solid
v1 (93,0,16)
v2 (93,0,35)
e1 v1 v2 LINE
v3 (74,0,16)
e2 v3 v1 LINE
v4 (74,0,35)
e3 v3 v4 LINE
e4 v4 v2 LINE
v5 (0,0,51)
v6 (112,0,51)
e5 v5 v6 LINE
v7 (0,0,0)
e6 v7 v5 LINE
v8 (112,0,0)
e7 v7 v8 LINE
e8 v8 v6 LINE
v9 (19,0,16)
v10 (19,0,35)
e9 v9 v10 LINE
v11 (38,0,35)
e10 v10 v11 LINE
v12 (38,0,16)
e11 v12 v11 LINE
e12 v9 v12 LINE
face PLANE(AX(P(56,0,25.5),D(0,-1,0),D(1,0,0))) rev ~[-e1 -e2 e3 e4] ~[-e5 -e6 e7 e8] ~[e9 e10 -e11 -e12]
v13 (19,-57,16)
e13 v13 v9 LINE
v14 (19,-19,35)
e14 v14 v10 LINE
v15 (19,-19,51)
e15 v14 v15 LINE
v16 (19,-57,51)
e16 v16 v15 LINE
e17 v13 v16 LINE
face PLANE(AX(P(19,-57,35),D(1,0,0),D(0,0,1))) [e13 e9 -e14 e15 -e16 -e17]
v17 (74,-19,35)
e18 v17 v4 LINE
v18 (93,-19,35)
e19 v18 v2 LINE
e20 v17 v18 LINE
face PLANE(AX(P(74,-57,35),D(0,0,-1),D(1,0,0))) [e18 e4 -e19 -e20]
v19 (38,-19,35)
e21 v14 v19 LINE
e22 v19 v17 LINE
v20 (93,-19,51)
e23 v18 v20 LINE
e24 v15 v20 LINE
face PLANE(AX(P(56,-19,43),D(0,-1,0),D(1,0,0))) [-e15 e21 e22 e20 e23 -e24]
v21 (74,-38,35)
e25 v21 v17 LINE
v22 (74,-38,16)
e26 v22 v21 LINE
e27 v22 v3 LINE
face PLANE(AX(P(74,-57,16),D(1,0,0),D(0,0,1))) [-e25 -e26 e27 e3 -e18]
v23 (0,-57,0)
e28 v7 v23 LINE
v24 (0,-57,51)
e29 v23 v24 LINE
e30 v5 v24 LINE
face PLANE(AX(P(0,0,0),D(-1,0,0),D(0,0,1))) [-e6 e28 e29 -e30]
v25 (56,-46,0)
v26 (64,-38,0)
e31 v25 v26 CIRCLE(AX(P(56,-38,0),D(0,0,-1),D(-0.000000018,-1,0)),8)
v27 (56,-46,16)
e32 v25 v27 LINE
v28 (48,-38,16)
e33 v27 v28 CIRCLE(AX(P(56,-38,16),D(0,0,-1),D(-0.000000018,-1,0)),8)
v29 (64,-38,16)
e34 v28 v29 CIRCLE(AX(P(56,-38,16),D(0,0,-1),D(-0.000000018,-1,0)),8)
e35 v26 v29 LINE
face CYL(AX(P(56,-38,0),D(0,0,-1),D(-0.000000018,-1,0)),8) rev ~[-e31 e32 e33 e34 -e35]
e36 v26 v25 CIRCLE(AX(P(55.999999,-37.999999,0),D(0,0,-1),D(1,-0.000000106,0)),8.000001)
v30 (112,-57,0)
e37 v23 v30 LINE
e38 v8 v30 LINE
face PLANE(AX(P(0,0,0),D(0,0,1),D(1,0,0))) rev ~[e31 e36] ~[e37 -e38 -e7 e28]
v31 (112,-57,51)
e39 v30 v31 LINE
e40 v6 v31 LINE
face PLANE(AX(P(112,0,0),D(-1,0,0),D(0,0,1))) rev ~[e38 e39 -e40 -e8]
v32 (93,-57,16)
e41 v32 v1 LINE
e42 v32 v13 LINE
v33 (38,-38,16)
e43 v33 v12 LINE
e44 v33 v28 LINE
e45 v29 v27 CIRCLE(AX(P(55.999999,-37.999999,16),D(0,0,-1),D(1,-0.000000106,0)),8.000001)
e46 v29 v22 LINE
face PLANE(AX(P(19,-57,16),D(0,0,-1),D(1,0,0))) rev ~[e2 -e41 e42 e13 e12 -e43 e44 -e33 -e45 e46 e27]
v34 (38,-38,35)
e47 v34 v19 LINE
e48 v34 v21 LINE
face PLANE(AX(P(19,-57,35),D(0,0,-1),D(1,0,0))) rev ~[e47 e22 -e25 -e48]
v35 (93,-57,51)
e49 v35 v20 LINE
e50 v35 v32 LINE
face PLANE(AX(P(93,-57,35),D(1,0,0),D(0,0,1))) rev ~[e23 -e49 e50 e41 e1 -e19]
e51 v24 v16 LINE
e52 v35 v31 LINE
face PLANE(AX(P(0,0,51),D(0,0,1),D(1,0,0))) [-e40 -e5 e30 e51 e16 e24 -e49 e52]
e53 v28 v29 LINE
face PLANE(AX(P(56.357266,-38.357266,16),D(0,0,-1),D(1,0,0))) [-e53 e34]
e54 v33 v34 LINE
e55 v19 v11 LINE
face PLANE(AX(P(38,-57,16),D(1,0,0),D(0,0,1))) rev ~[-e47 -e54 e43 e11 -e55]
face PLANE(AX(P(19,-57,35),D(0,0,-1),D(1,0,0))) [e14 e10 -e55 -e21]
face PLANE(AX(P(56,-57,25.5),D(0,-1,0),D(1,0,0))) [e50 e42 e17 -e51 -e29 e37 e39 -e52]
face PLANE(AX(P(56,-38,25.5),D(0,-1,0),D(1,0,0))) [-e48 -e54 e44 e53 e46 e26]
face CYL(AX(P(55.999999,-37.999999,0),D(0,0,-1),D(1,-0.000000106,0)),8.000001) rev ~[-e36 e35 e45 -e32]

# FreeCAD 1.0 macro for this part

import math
import FreeCAD as App
import Part
import Sketcher

doc = App.newDocument("Part")
body = doc.addObject("PartDesign::Body", "Body")

sketch1 = body.newObject("Sketcher::SketchObject", "Sketch")
sketch1.AttachmentSupport = (doc.getObject("XZ_Plane"), [""])
sketch1.MapMode = "FlatFace"
sketch1.addGeometry(Part.LineSegment(App.Vector(0, 51, 0), App.Vector(0, 0, 0)), False)
sketch1.addGeometry(Part.LineSegment(App.Vector(0, 0, 0), App.Vector(112, 0, 0)), False)
sketch1.addGeometry(Part.LineSegment(App.Vector(112, 0, 0), App.Vector(112, 51, 0)), False)
sketch1.addGeometry(Part.LineSegment(App.Vector(112, 51, 0), App.Vector(0, 51, 0)), False)
sketch1.addConstraint(Sketcher.Constraint("Coincident", 0, 2, 1, 1))
sketch1.addConstraint(Sketcher.Constraint("Coincident", 1, 2, 2, 1))
sketch1.addConstraint(Sketcher.Constraint("Coincident", 2, 2, 3, 1))
sketch1.addConstraint(Sketcher.Constraint("Coincident", 3, 2, 0, 1))
sketch1.addConstraint(Sketcher.Constraint("Vertical", 0))
sketch1.addConstraint(Sketcher.Constraint("Horizontal", 1))
sketch1.addConstraint(Sketcher.Constraint("Vertical", 2))
sketch1.addConstraint(Sketcher.Constraint("Horizontal", 3))
sketch1.addConstraint(Sketcher.Constraint("Coincident", 0, 2, -1, 1))
sketch1.addConstraint(Sketcher.Constraint("DistanceX", 1, 1, 1, 2, 112.0))
sketch1.addConstraint(Sketcher.Constraint("DistanceY", 0, 2, 0, 1, 51.0))
pad1 = body.newObject("PartDesign::Pad", "Pad")
pad1.Profile = sketch1
pad1.Length = 57

sketch2 = body.newObject("Sketcher::SketchObject", "Sketch001")
sketch2.AttachmentSupport = (doc.getObject("XZ_Plane"), [""])
sketch2.MapMode = "FlatFace"
sketch2.AttachmentOffset = App.Placement(App.Vector(0, 0, 57), App.Rotation())
sketch2.addGeometry(Part.LineSegment(App.Vector(19, 51, 0), App.Vector(19, 35, 0)), False)
sketch2.addGeometry(Part.LineSegment(App.Vector(19, 35, 0), App.Vector(93, 35, 0)), False)
sketch2.addGeometry(Part.LineSegment(App.Vector(93, 35, 0), App.Vector(93, 51, 0)), False)
sketch2.addGeometry(Part.LineSegment(App.Vector(93, 51, 0), App.Vector(19, 51, 0)), False)
sketch2.addConstraint(Sketcher.Constraint("Coincident", 0, 2, 1, 1))
sketch2.addConstraint(Sketcher.Constraint("Coincident", 1, 2, 2, 1))
sketch2.addConstraint(Sketcher.Constraint("Coincident", 2, 2, 3, 1))
sketch2.addConstraint(Sketcher.Constraint("Coincident", 3, 2, 0, 1))
sketch2.addConstraint(Sketcher.Constraint("Vertical", 0))
sketch2.addConstraint(Sketcher.Constraint("Horizontal", 1))
sketch2.addConstraint(Sketcher.Constraint("Vertical", 2))
sketch2.addConstraint(Sketcher.Constraint("Horizontal", 3))
sketch2.addConstraint(Sketcher.Constraint("DistanceX", 1, 1, 1, 2, 74.0))
sketch2.addConstraint(Sketcher.Constraint("DistanceY", 0, 2, 0, 1, 16.0))
sketch2.addConstraint(Sketcher.Constraint("DistanceX", -1, 1, 0, 2, 19.0))
sketch2.addConstraint(Sketcher.Constraint("DistanceY", -1, 1, 0, 2, 35.0))
pocket1 = body.newObject("PartDesign::Pocket", "Pocket")
pocket1.Profile = sketch2
pocket1.Length = 38

sketch3 = body.newObject("Sketcher::SketchObject", "Sketch002")
sketch3.AttachmentSupport = (doc.getObject("XZ_Plane"), [""])
sketch3.MapMode = "FlatFace"
sketch3.AttachmentOffset = App.Placement(App.Vector(0, 0, 57), App.Rotation())
sketch3.addGeometry(Part.LineSegment(App.Vector(19, 35, 0), App.Vector(19, 16, 0)), False)
sketch3.addGeometry(Part.LineSegment(App.Vector(19, 16, 0), App.Vector(38, 16, 0)), False)
sketch3.addGeometry(Part.LineSegment(App.Vector(38, 16, 0), App.Vector(38, 35, 0)), False)
sketch3.addGeometry(Part.LineSegment(App.Vector(38, 35, 0), App.Vector(19, 35, 0)), False)
sketch3.addGeometry(Part.LineSegment(App.Vector(74, 35, 0), App.Vector(74, 16, 0)), False)
sketch3.addGeometry(Part.LineSegment(App.Vector(74, 16, 0), App.Vector(93, 16, 0)), False)
sketch3.addGeometry(Part.LineSegment(App.Vector(93, 16, 0), App.Vector(93, 35, 0)), False)
sketch3.addGeometry(Part.LineSegment(App.Vector(93, 35, 0), App.Vector(74, 35, 0)), False)
sketch3.addConstraint(Sketcher.Constraint("Coincident", 0, 2, 1, 1))
sketch3.addConstraint(Sketcher.Constraint("Coincident", 1, 2, 2, 1))
sketch3.addConstraint(Sketcher.Constraint("Coincident", 2, 2, 3, 1))
sketch3.addConstraint(Sketcher.Constraint("Coincident", 3, 2, 0, 1))
sketch3.addConstraint(Sketcher.Constraint("Coincident", 4, 2, 5, 1))
sketch3.addConstraint(Sketcher.Constraint("Coincident", 5, 2, 6, 1))
sketch3.addConstraint(Sketcher.Constraint("Coincident", 6, 2, 7, 1))
sketch3.addConstraint(Sketcher.Constraint("Coincident", 7, 2, 4, 1))
sketch3.addConstraint(Sketcher.Constraint("Vertical", 0))
sketch3.addConstraint(Sketcher.Constraint("Horizontal", 1))
sketch3.addConstraint(Sketcher.Constraint("Vertical", 2))
sketch3.addConstraint(Sketcher.Constraint("Horizontal", 3))
sketch3.addConstraint(Sketcher.Constraint("Vertical", 4))
sketch3.addConstraint(Sketcher.Constraint("Horizontal", 5))
sketch3.addConstraint(Sketcher.Constraint("Vertical", 6))
sketch3.addConstraint(Sketcher.Constraint("Horizontal", 7))
sketch3.addConstraint(Sketcher.Constraint("Horizontal", 1, 2, 4, 2))
sketch3.addConstraint(Sketcher.Constraint("Horizontal", 3, 2, 6, 2))
sketch3.addConstraint(Sketcher.Constraint("Equal", 3, 5))
sketch3.addConstraint(Sketcher.Constraint("Equal", 7, 0))
sketch3.addConstraint(Sketcher.Constraint("DistanceX", 1, 1, 1, 2, 19.0))
sketch3.addConstraint(Sketcher.Constraint("DistanceX", -1, 1, 0, 2, 19.0))
sketch3.addConstraint(Sketcher.Constraint("DistanceY", -1, 1, 0, 2, 16.0))
sketch3.addConstraint(Sketcher.Constraint("DistanceX", -1, 1, 4, 2, 74.0))
pocket2 = body.newObject("PartDesign::Pocket", "Pocket001")
pocket2.Profile = sketch3
pocket2.Type = "ThroughAll"

sketch4 = body.newObject("Sketcher::SketchObject", "Sketch003")
sketch4.AttachmentSupport = (doc.getObject("XZ_Plane"), [""])
sketch4.MapMode = "FlatFace"
sketch4.AttachmentOffset = App.Placement(App.Vector(0, 0, 57), App.Rotation())
sketch4.addGeometry(Part.LineSegment(App.Vector(38, 35, 0), App.Vector(38, 16, 0)), False)
sketch4.addGeometry(Part.LineSegment(App.Vector(38, 16, 0), App.Vector(74, 16, 0)), False)
sketch4.addGeometry(Part.LineSegment(App.Vector(74, 16, 0), App.Vector(74, 35, 0)), False)
sketch4.addGeometry(Part.LineSegment(App.Vector(74, 35, 0), App.Vector(38, 35, 0)), False)
sketch4.addConstraint(Sketcher.Constraint("Coincident", 0, 2, 1, 1))
sketch4.addConstraint(Sketcher.Constraint("Coincident", 1, 2, 2, 1))
sketch4.addConstraint(Sketcher.Constraint("Coincident", 2, 2, 3, 1))
sketch4.addConstraint(Sketcher.Constraint("Coincident", 3, 2, 0, 1))
sketch4.addConstraint(Sketcher.Constraint("Vertical", 0))
sketch4.addConstraint(Sketcher.Constraint("Horizontal", 1))
sketch4.addConstraint(Sketcher.Constraint("Vertical", 2))
sketch4.addConstraint(Sketcher.Constraint("Horizontal", 3))
sketch4.addConstraint(Sketcher.Constraint("DistanceX", 1, 1, 1, 2, 36.0))
sketch4.addConstraint(Sketcher.Constraint("DistanceY", 0, 2, 0, 1, 19.0))
sketch4.addConstraint(Sketcher.Constraint("DistanceX", -1, 1, 0, 2, 38.0))
sketch4.addConstraint(Sketcher.Constraint("DistanceY", -1, 1, 0, 2, 16.0))
pocket3 = body.newObject("PartDesign::Pocket", "Pocket002")
pocket3.Profile = sketch4
pocket3.Length = 19

sketch5 = body.newObject("Sketcher::SketchObject", "Sketch004")
sketch5.AttachmentSupport = (doc.getObject("XY_Plane"), [""])
sketch5.MapMode = "FlatFace"
sketch5.addGeometry(Part.ArcOfCircle(Part.Circle(App.Vector(56, -38, 0), App.Vector(0, 0, 1), 8), math.radians(-90), math.radians(0)), False)
sketch5.addGeometry(Part.ArcOfCircle(Part.Circle(App.Vector(56, -38, 0), App.Vector(0, 0, 1), 8), math.radians(0), math.radians(270)), False)
sketch5.addConstraint(Sketcher.Constraint("Tangent", 0, 1, 1, 2))
sketch5.addConstraint(Sketcher.Constraint("Coincident", 1, 1, 0, 2))
sketch5.addConstraint(Sketcher.Constraint("Horizontal", 0, 3, 1, 1))
sketch5.addConstraint(Sketcher.Constraint("Vertical", 1, 3, 0, 1))
sketch5.addConstraint(Sketcher.Constraint("Radius", 0, 8.000001))
sketch5.addConstraint(Sketcher.Constraint("DistanceX", -1, 1, 0, 3, 55.999999))
sketch5.addConstraint(Sketcher.Constraint("DistanceY", 0, 3, -1, 1, 37.999999))
pocket4 = body.newObject("PartDesign::Pocket", "Pocket003")
pocket4.Profile = sketch5
pocket4.Length = 16
pocket4.Reversed = True

doc.recompute()
